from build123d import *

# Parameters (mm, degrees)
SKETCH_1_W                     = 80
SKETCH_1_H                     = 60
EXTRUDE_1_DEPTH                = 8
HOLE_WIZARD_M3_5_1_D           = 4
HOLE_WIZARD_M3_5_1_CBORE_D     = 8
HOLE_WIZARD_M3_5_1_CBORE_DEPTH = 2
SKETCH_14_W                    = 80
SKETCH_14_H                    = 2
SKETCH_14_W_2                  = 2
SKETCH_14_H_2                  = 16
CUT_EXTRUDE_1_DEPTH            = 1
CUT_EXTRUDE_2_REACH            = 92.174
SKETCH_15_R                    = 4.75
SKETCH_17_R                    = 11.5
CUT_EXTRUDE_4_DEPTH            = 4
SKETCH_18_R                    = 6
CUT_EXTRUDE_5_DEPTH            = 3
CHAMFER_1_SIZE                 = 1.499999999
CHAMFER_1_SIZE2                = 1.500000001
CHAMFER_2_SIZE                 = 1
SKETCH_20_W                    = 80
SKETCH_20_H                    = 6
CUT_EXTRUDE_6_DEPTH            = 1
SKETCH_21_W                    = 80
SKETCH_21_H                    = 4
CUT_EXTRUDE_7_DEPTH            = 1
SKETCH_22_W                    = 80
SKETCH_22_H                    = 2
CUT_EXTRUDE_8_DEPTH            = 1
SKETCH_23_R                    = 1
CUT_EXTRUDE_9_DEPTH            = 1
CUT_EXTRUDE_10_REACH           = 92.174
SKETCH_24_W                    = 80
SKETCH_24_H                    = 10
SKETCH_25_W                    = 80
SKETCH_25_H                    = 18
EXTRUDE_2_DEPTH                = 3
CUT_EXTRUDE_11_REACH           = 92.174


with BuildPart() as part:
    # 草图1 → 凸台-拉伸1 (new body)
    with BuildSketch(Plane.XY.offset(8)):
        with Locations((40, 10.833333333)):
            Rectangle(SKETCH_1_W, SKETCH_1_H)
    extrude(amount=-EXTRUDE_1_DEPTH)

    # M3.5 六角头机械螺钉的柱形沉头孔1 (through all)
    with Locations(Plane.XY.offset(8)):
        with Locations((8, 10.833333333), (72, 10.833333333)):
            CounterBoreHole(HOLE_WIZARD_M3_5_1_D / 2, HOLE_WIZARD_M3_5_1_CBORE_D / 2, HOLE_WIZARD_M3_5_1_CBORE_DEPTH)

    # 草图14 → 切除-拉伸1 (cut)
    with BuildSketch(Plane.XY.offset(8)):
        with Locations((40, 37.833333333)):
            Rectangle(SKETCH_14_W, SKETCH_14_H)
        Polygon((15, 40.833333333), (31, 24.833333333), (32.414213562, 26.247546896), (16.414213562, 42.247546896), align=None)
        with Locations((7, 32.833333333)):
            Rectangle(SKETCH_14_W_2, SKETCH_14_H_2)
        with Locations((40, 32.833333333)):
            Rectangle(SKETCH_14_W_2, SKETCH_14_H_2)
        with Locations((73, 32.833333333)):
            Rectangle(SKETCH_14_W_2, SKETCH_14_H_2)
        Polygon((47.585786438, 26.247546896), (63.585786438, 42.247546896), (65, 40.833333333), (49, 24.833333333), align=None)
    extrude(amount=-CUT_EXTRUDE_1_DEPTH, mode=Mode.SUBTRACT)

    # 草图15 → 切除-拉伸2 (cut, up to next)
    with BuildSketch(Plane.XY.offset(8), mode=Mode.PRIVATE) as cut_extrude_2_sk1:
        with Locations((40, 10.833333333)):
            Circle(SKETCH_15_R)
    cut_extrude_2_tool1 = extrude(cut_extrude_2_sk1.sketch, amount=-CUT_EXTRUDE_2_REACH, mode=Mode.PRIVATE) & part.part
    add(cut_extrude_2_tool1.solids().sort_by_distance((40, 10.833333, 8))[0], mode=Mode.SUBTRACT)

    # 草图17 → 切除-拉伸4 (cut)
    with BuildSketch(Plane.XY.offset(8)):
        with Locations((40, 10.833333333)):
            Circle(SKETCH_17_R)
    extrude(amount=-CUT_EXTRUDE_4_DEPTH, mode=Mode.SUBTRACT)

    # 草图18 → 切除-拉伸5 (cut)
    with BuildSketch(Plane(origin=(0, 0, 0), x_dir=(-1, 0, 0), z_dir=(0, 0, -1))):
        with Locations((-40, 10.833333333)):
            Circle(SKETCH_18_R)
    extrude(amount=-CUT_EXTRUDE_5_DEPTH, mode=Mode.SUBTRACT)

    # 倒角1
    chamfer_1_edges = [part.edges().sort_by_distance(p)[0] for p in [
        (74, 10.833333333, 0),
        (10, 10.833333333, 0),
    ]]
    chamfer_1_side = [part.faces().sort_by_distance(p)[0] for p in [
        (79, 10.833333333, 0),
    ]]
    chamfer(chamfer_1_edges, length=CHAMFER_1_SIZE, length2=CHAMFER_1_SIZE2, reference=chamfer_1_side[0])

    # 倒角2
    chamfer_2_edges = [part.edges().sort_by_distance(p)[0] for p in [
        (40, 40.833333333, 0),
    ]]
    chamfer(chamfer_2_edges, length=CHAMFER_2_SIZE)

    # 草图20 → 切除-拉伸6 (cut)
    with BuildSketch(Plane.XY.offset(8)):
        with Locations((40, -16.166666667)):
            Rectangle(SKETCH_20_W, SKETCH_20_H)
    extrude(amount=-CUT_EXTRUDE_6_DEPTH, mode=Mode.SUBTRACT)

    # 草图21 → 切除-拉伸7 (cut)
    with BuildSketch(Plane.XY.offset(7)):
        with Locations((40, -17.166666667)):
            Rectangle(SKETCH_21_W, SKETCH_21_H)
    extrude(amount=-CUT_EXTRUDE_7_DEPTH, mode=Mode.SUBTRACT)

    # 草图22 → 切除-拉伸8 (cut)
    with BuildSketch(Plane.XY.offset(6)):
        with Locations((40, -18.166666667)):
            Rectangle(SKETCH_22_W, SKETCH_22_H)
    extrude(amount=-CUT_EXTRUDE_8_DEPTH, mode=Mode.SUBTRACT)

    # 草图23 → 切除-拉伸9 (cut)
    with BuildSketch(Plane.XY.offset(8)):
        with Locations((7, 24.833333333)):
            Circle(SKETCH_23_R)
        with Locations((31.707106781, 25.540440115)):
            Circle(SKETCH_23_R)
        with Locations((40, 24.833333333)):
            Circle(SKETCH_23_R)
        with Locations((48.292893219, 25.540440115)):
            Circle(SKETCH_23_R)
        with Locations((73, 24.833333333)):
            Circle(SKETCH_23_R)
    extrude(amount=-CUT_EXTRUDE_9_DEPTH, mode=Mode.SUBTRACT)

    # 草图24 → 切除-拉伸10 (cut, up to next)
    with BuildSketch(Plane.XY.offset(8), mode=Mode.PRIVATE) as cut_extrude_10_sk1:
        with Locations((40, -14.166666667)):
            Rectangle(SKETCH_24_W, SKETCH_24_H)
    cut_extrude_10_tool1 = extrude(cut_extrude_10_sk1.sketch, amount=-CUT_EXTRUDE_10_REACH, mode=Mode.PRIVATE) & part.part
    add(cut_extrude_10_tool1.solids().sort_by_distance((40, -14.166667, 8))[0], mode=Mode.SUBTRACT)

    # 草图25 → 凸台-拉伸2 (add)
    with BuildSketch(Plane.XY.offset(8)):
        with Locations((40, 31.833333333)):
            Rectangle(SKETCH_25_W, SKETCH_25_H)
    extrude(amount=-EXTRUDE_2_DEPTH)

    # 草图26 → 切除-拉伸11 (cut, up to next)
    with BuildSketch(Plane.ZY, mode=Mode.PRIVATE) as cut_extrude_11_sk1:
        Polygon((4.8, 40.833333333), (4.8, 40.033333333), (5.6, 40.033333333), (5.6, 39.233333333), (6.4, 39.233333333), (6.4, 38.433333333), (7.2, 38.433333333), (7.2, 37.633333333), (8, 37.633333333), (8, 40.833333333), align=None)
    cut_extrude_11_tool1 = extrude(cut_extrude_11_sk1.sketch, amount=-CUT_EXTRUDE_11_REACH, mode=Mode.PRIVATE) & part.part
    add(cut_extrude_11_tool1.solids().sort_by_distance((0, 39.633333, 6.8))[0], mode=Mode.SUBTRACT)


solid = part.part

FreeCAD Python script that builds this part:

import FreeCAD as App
import Part
import Sketcher
from FreeCAD import Vector


def edges_at(feature, points):
    """Names of the edges that pass closest to the given points."""
    edges = feature.Shape.Edges
    near = lambda p: min(range(len(edges)), key=lambda i: edges[i].distToShape(Part.Vertex(*p))[0])
    return sorted({f"Edge{near(p) + 1}" for p in points})

doc = App.newDocument("Part")
body = doc.addObject("PartDesign::Body", "Body")

# Sketch on XY plane
sketch1 = body.newObject("Sketcher::SketchObject", "Sketch")
sketch1.AttachmentSupport = (doc.getObject("XY_Plane"), [""])
sketch1.MapMode = "FlatFace"
sketch1.AttachmentOffset = App.Placement(Vector(0, 0, 8), App.Rotation())
sketch1.addGeometry(Part.LineSegment(Vector(0, 41, 0), Vector(0, -19, 0)), False)
sketch1.addGeometry(Part.LineSegment(Vector(0, -19, 0), Vector(80, -19, 0)), False)
sketch1.addGeometry(Part.LineSegment(Vector(80, -19, 0), Vector(80, 41, 0)), False)
sketch1.addGeometry(Part.LineSegment(Vector(80, 41, 0), Vector(0, 41, 0)), False)
sketch1.addConstraint(Sketcher.Constraint("Coincident", 0, 2, 1, 1))
sketch1.addConstraint(Sketcher.Constraint("Coincident", 1, 2, 2, 1))
sketch1.addConstraint(Sketcher.Constraint("Coincident", 2, 2, 3, 1))
sketch1.addConstraint(Sketcher.Constraint("Coincident", 3, 2, 0, 1))
sketch1.addConstraint(Sketcher.Constraint("Vertical", 0))
sketch1.addConstraint(Sketcher.Constraint("Horizontal", 1))
sketch1.addConstraint(Sketcher.Constraint("Vertical", 2))
sketch1.addConstraint(Sketcher.Constraint("Horizontal", 3))
sketch1.addConstraint(Sketcher.Constraint("PointOnObject", 0, 2, -2))
sketch1.addConstraint(Sketcher.Constraint("DistanceX", 1, 1, 1, 2, 80.0))
sketch1.addConstraint(Sketcher.Constraint("DistanceY", 0, 2, 0, 1, 60.0))
sketch1.addConstraint(Sketcher.Constraint("DistanceY", 0, 2, -1, 1, 19.166667))
pad1 = body.newObject("PartDesign::Pad", "Pad")
pad1.Profile = sketch1
pad1.Length = 8
pad1.Reversed = True

# Sketch on XY plane
sketch2 = body.newObject("Sketcher::SketchObject", "Sketch001")
sketch2.AttachmentSupport = (doc.getObject("XY_Plane"), [""])
sketch2.MapMode = "FlatFace"
sketch2.AttachmentOffset = App.Placement(Vector(0, 0, 8), App.Rotation())
sketch2.addGeometry(Part.Circle(Vector(8, 10.8, 0), Vector(0, 0, 1), 2), False)
sketch2.addGeometry(Part.Circle(Vector(72, 10.8, 0), Vector(0, 0, 1), 2), False)
sketch2.addConstraint(Sketcher.Constraint("Equal", 0, 1))
sketch2.addConstraint(Sketcher.Constraint("Horizontal", 0, 3, 1, 3))
sketch2.addConstraint(Sketcher.Constraint("Diameter", 0, 4.0))
sketch2.addConstraint(Sketcher.Constraint("DistanceX", -1, 1, 0, 3, 8.0))
sketch2.addConstraint(Sketcher.Constraint("DistanceX", -1, 1, 1, 3, 72.0))
sketch2.addConstraint(Sketcher.Constraint("DistanceY", -1, 1, 0, 3, 10.833333))
doc.recompute()
hole = body.newObject("PartDesign::Hole", "Hole")
hole.Profile = sketch2
hole.ThreadType = "None"
hole.Diameter = 4
hole.DepthType = "ThroughAll"
hole.HoleCutType = "Counterbore"
hole.HoleCutDiameter = 8
hole.HoleCutDepth = 2

# Sketch on XY plane
sketch3 = body.newObject("Sketcher::SketchObject", "Sketch002")
sketch3.AttachmentSupport = (doc.getObject("XY_Plane"), [""])
sketch3.MapMode = "FlatFace"
sketch3.AttachmentOffset = App.Placement(Vector(0, 0, 8), App.Rotation())
sketch3.addGeometry(Part.LineSegment(Vector(0, 38.8, 0), Vector(0, 36.8, 0)), False)
sketch3.addGeometry(Part.LineSegment(Vector(0, 36.8, 0), Vector(6, 36.8, 0)), False)
sketch3.addGeometry(Part.LineSegment(Vector(6, 36.8, 0), Vector(6, 24.8, 0)), False)
sketch3.addGeometry(Part.LineSegment(Vector(6, 24.8, 0), Vector(8, 24.8, 0)), False)
sketch3.addGeometry(Part.LineSegment(Vector(8, 24.8, 0), Vector(8, 36.8, 0)), False)
sketch3.addGeometry(Part.LineSegment(Vector(8, 36.8, 0), Vector(19, 36.8, 0)), False)
sketch3.addGeometry(Part.LineSegment(Vector(19, 36.8, 0), Vector(31, 24.8, 0)), False)
sketch3.addGeometry(Part.LineSegment(Vector(31, 24.8, 0), Vector(32.4, 26.2, 0)), False)
sketch3.addGeometry(Part.LineSegment(Vector(32.4, 26.2, 0), Vector(21.8, 36.8, 0)), False)
sketch3.addGeometry(Part.LineSegment(Vector(21.8, 36.8, 0), Vector(39, 36.8, 0)), False)
sketch3.addGeometry(Part.LineSegment(Vector(39, 36.8, 0), Vector(39, 24.8, 0)), False)
sketch3.addGeometry(Part.LineSegment(Vector(39, 24.8, 0), Vector(41, 24.8, 0)), False)
sketch3.addGeometry(Part.LineSegment(Vector(41, 24.8, 0), Vector(41, 36.8, 0)), False)
sketch3.addGeometry(Part.LineSegment(Vector(41, 36.8, 0), Vector(58.2, 36.8, 0)), False)
sketch3.addGeometry(Part.LineSegment(Vector(58.2, 36.8, 0), Vector(47.6, 26.2, 0)), False)
sketch3.addGeometry(Part.LineSegment(Vector(47.6, 26.2, 0), Vector(49, 24.8, 0)), False)
sketch3.addGeometry(Part.LineSegment(Vector(49, 24.8, 0), Vector(61, 36.8, 0)), False)
sketch3.addGeometry(Part.LineSegment(Vector(61, 36.8, 0), Vector(72, 36.8, 0)), False)
sketch3.addGeometry(Part.LineSegment(Vector(72, 36.8, 0), Vector(72, 24.8, 0)), False)
sketch3.addGeometry(Part.LineSegment(Vector(72, 24.8, 0), Vector(74, 24.8, 0)), False)
sketch3.addGeometry(Part.LineSegment(Vector(74, 24.8, 0), Vector(74, 36.8, 0)), False)
sketch3.addGeometry(Part.LineSegment(Vector(74, 36.8, 0), Vector(80, 36.8, 0)), False)
sketch3.addGeometry(Part.LineSegment(Vector(80, 36.8, 0), Vector(80, 38.8, 0)), False)
sketch3.addGeometry(Part.LineSegment(Vector(80, 38.8, 0), Vector(74, 38.8, 0)), False)
sketch3.addGeometry(Part.LineSegment(Vector(74, 38.8, 0), Vector(74, 40.8, 0)), False)
sketch3.addGeometry(Part.LineSegment(Vector(74, 40.8, 0), Vector(72, 40.8, 0)), False)
sketch3.addGeometry(Part.LineSegment(Vector(72, 40.8, 0), Vector(72, 38.8, 0)), False)
sketch3.addGeometry(Part.LineSegment(Vector(72, 38.8, 0), Vector(63, 38.8, 0)), False)
sketch3.addGeometry(Part.LineSegment(Vector(63, 38.8, 0), Vector(65, 40.8, 0)), False)
sketch3.addGeometry(Part.LineSegment(Vector(65, 40.8, 0), Vector(63.6, 42.2, 0)), False)
sketch3.addGeometry(Part.LineSegment(Vector(63.6, 42.2, 0), Vector(60.2, 38.8, 0)), False)
sketch3.addGeometry(Part.LineSegment(Vector(60.2, 38.8, 0), Vector(41, 38.8, 0)), False)
sketch3.addGeometry(Part.LineSegment(Vector(41, 38.8, 0), Vector(41, 40.8, 0)), False)
sketch3.addGeometry(Part.LineSegment(Vector(41, 40.8, 0), Vector(39, 40.8, 0)), False)
sketch3.addGeometry(Part.LineSegment(Vector(39, 40.8, 0), Vector(39, 38.8, 0)), False)
sketch3.addGeometry(Part.LineSegment(Vector(39, 38.8, 0), Vector(19.8, 38.8, 0)), False)
sketch3.addGeometry(Part.LineSegment(Vector(19.8, 38.8, 0), Vector(16.4, 42.2, 0)), False)
sketch3.addGeometry(Part.LineSegment(Vector(16.4, 42.2, 0), Vector(15, 40.8, 0)), False)
sketch3.addGeometry(Part.LineSegment(Vector(15, 40.8, 0), Vector(17, 38.8, 0)), False)
sketch3.addGeometry(Part.LineSegment(Vector(17, 38.8, 0), Vector(8, 38.8, 0)), False)
sketch3.addGeometry(Part.LineSegment(Vector(8, 38.8, 0), Vector(8, 40.8, 0)), False)
sketch3.addGeometry(Part.LineSegment(Vector(8, 40.8, 0), Vector(6, 40.8, 0)), False)
sketch3.addGeometry(Part.LineSegment(Vector(6, 40.8, 0), Vector(6, 38.8, 0)), False)
sketch3.addGeometry(Part.LineSegment(Vector(6, 38.8, 0), Vector(0, 38.8, 0)), False)
sketch3.addConstraint(Sketcher.Constraint("Coincident", 0, 2, 1, 1))
sketch3.addConstraint(Sketcher.Constraint("Coincident", 1, 2, 2, 1))
sketch3.addConstraint(Sketcher.Constraint("Coincident", 2, 2, 3, 1))
sketch3.addConstraint(Sketcher.Constraint("Coincident", 3, 2, 4, 1))
sketch3.addConstraint(Sketcher.Constraint("Coincident", 4, 2, 5, 1))
sketch3.addConstraint(Sketcher.Constraint("Coincident", 5, 2, 6, 1))
sketch3.addConstraint(Sketcher.Constraint("Coincident", 6, 2, 7, 1))
sketch3.addConstraint(Sketcher.Constraint("Coincident", 7, 2, 8, 1))
sketch3.addConstraint(Sketcher.Constraint("Coincident", 8, 2, 9, 1))
sketch3.addConstraint(Sketcher.Constraint("Coincident", 9, 2, 10, 1))
sketch3.addConstraint(Sketcher.Constraint("Coincident", 10, 2, 11, 1))
sketch3.addConstraint(Sketcher.Constraint("Coincident", 11, 2, 12, 1))
sketch3.addConstraint(Sketcher.Constraint("Coincident", 12, 2, 13, 1))
sketch3.addConstraint(Sketcher.Constraint("Coincident", 13, 2, 14, 1))
sketch3.addConstraint(Sketcher.Constraint("Coincident", 14, 2, 15, 1))
sketch3.addConstraint(Sketcher.Constraint("Coincident", 15, 2, 16, 1))
sketch3.addConstraint(Sketcher.Constraint("Coincident", 16, 2, 17, 1))
sketch3.addConstraint(Sketcher.Constraint("Coincident", 17, 2, 18, 1))
sketch3.addConstraint(Sketcher.Constraint("Coincident", 18, 2, 19, 1))
sketch3.addConstraint(Sketcher.Constraint("Coincident", 19, 2, 20, 1))
sketch3.addConstraint(Sketcher.Constraint("Coincident", 20, 2, 21, 1))
sketch3.addConstraint(Sketcher.Constraint("Coincident", 21, 2, 22, 1))
sketch3.addConstraint(Sketcher.Constraint("Coincident", 22, 2, 23, 1))
sketch3.addConstraint(Sketcher.Constraint("Coincident", 23, 2, 24, 1))
sketch3.addConstraint(Sketcher.Constraint("Coincident", 24, 2, 25, 1))
sketch3.addConstraint(Sketcher.Constraint("Coincident", 25, 2, 26, 1))
sketch3.addConstraint(Sketcher.Constraint("Coincident", 26, 2, 27, 1))
sketch3.addConstraint(Sketcher.Constraint("Coincident", 27, 2, 28, 1))
sketch3.addConstraint(Sketcher.Constraint("Coincident", 28, 2, 29, 1))
sketch3.addConstraint(Sketcher.Constraint("Coincident", 29, 2, 30, 1))
sketch3.addConstraint(Sketcher.Constraint("Coincident", 30, 2, 31, 1))
sketch3.addConstraint(Sketcher.Constraint("Coincident", 31, 2, 32, 1))
sketch3.addConstraint(Sketcher.Constraint("Coincident", 32, 2, 33, 1))
sketch3.addConstraint(Sketcher.Constraint("Coincident", 33, 2, 34, 1))
sketch3.addConstraint(Sketcher.Constraint("Coincident", 34, 2, 35, 1))
sketch3.addConstraint(Sketcher.Constraint("Coincident", 35, 2, 36, 1))
sketch3.addConstraint(Sketcher.Constraint("Coincident", 36, 2, 37, 1))
sketch3.addConstraint(Sketcher.Constraint("Coincident", 37, 2, 38, 1))
sketch3.addConstraint(Sketcher.Constraint("Coincident", 38, 2, 39, 1))
sketch3.addConstraint(Sketcher.Constraint("Coincident", 39, 2, 40, 1))
sketch3.addConstraint(Sketcher.Constraint("Coincident", 40, 2, 41, 1))
sketch3.addConstraint(Sketcher.Constraint("Coincident", 41, 2, 42, 1))
sketch3.addConstraint(Sketcher.Constraint("Coincident", 42, 2, 43, 1))
sketch3.addConstraint(Sketcher.Constraint("Coincident", 43, 2, 0, 1))
sketch3.addConstraint(Sketcher.Constraint("Vertical", 0))
sketch3.addConstraint(Sketcher.Constraint("Horizontal", 1))
sketch3.addConstraint(Sketcher.Constraint("Vertical", 2))
sketch3.addConstraint(Sketcher.Constraint("Horizontal", 3))
sketch3.addConstraint(Sketcher.Constraint("Vertical", 4))
sketch3.addConstraint(Sketcher.Constraint("Horizontal", 5))
sketch3.addConstraint(Sketcher.Constraint("Horizontal", 9))
sketch3.addConstraint(Sketcher.Constraint("Vertical", 10))
sketch3.addConstraint(Sketcher.Constraint("Horizontal", 11))
sketch3.addConstraint(Sketcher.Constraint("Vertical", 12))
sketch3.addConstraint(Sketcher.Constraint("Horizontal", 13))
sketch3.addConstraint(Sketcher.Constraint("Horizontal", 17))
sketch3.addConstraint(Sketcher.Constraint("Vertical", 18))
sketch3.addConstraint(Sketcher.Constraint("Horizontal", 19))
sketch3.addConstraint(Sketcher.Constraint("Vertical", 20))
sketch3.addConstraint(Sketcher.Constraint("Horizontal", 21))
sketch3.addConstraint(Sketcher.Constraint("Vertical", 22))
sketch3.addConstraint(Sketcher.Constraint("Horizontal", 23))
sketch3.addConstraint(Sketcher.Constraint("Vertical", 24))
sketch3.addConstraint(Sketcher.Constraint("Horizontal", 25))
sketch3.addConstraint(Sketcher.Constraint("Vertical", 26))
sketch3.addConstraint(Sketcher.Constraint("Horizontal", 27))
sketch3.addConstraint(Sketcher.Constraint("Horizontal", 31))
sketch3.addConstraint(Sketcher.Constraint("Vertical", 32))
sketch3.addConstraint(Sketcher.Constraint("Horizontal", 33))
sketch3.addConstraint(Sketcher.Constraint("Vertical", 34))
sketch3.addConstraint(Sketcher.Constraint("Horizontal", 35))
sketch3.addConstraint(Sketcher.Constraint("Horizontal", 39))
sketch3.addConstraint(Sketcher.Constraint("Vertical", 40))
sketch3.addConstraint(Sketcher.Constraint("Horizontal", 41))
sketch3.addConstraint(Sketcher.Constraint("Vertical", 42))
sketch3.addConstraint(Sketcher.Constraint("Horizontal", 43))
sketch3.addConstraint(Sketcher.Constraint("PointOnObject", 0, 2, -2))
sketch3.addConstraint(Sketcher.Constraint("Perpendicular", 6, 7))
sketch3.addConstraint(Sketcher.Constraint("Perpendicular", 7, 8))
sketch3.addConstraint(Sketcher.Constraint("Perpendicular", 8, 14))
sketch3.addConstraint(Sketcher.Constraint("Perpendicular", 14, 15))
sketch3.addConstraint(Sketcher.Constraint("Perpendicular", 15, 16))
sketch3.addConstraint(Sketcher.Constraint("Parallel", 16, 28))
sketch3.addConstraint(Sketcher.Constraint("Perpendicular", 28, 29))
sketch3.addConstraint(Sketcher.Constraint("Perpendicular", 29, 30))
sketch3.addConstraint(Sketcher.Constraint("Perpendicular", 30, 36))
sketch3.addConstraint(Sketcher.Constraint("Perpendicular", 36, 37))
sketch3.addConstraint(Sketcher.Constraint("Perpendicular", 37, 38))
sketch3.addConstraint(Sketcher.Constraint("Horizontal", 1, 2, 4, 2))
sketch3.addConstraint(Sketcher.Constraint("Horizontal", 3, 2, 6, 2))
sketch3.addConstraint(Sketcher.Constraint("Horizontal", 5, 2, 8, 2))
sketch3.addConstraint(Sketcher.Constraint("Horizontal", 6, 2, 10, 2))
sketch3.addConstraint(Sketcher.Constraint("Horizontal", 9, 2, 12, 2))
sketch3.addConstraint(Sketcher.Constraint("Horizontal", 7, 2, 14, 2))
sketch3.addConstraint(Sketcher.Constraint("Horizontal", 11, 2, 15, 2))
sketch3.addConstraint(Sketcher.Constraint("Horizontal", 13, 2, 16, 2))
sketch3.addConstraint(Sketcher.Constraint("Horizontal", 15, 2, 18, 2))
sketch3.addConstraint(Sketcher.Constraint("Horizontal", 17, 2, 20, 2))
sketch3.addConstraint(Sketcher.Constraint("Horizontal", 23, 2, 26, 2))
sketch3.addConstraint(Sketcher.Constraint("Horizontal", 25, 2, 28, 2))
sketch3.addConstraint(Sketcher.Constraint("Horizontal", 27, 2, 30, 2))
sketch3.addConstraint(Sketcher.Constraint("Horizontal", 28, 2, 32, 2))
sketch3.addConstraint(Sketcher.Constraint("Horizontal", 31, 2, 34, 2))
sketch3.addConstraint(Sketcher.Constraint("Horizontal", 29, 2, 36, 2))
sketch3.addConstraint(Sketcher.Constraint("Horizontal", 33, 2, 37, 2))
sketch3.addConstraint(Sketcher.Constraint("Horizontal", 35, 2, 38, 2))
sketch3.addConstraint(Sketcher.Constraint("Horizontal", 37, 2, 40, 2))
sketch3.addConstraint(Sketcher.Constraint("Horizontal", 39, 2, 42, 2))
sketch3.addConstraint(Sketcher.Constraint("Vertical", 20, 2, 23, 2))
sketch3.addConstraint(Sketcher.Constraint("Vertical", 18, 2, 25, 2))
sketch3.addConstraint(Sketcher.Constraint("Vertical", 12, 2, 31, 2))
sketch3.addConstraint(Sketcher.Constraint("Vertical", 10, 2, 33, 2))
sketch3.addConstraint(Sketcher.Constraint("Vertical", 4, 2, 39, 2))
sketch3.addConstraint(Sketcher.Constraint("Vertical", 2, 2, 41, 2))
sketch3.addConstraint(Sketcher.Constraint("Equal", 3, 11))
sketch3.addConstraint(Sketcher.Constraint("Equal", 9, 13))
sketch3.addConstraint(Sketcher.Constraint("Equal", 5, 17))
sketch3.addConstraint(Sketcher.Constraint("Equal", 11, 19))
sketch3.addConstraint(Sketcher.Constraint("Equal", 1, 21))
sketch3.addConstraint(Sketcher.Constraint("Equal", 31, 35))
sketch3.addConstraint(Sketcher.Constraint("Equal", 41, 0))
sketch3.addConstraint(Sketcher.Constraint("Equal", 22, 24))
sketch3.addConstraint(Sketcher.Constraint("Equal", 8, 14))
sketch3.addConstraint(Sketcher.Constraint("Equal", 15, 29))
sketch3.addConstraint(Sketcher.Constraint("DistanceX", 1, 1, 1, 2, 6.0))
sketch3.addConstraint(Sketcher.Constraint("DistanceX", 3, 1, 3, 2, 2.0))
sketch3.addConstraint(Sketcher.Constraint("DistanceX", 5, 1, 5, 2, 11.0))
sketch3.addConstraint(Sketcher.Constraint("DistanceX", 27, 2, 27, 1, 9.0))
sketch3.addConstraint(Sketcher.Constraint("DistanceY", 2, 2, 2, 1, 12.0))
sketch3.addConstraint(Sketcher.Constraint("Distance", 7, 2.0))
sketch3.addConstraint(Sketcher.Constraint("DistanceX", -1, 1, 9, 2, 39.0))
sketch3.addConstraint(Sketcher.Constraint("DistanceY", -1, 1, 0, 2, 36.833333))
pocket1 = body.newObject("PartDesign::Pocket", "Pocket")
pocket1.Profile = sketch3
pocket1.Length = 1

# Sketch on XY plane
sketch4 = body.newObject("Sketcher::SketchObject", "Sketch003")
sketch4.AttachmentSupport = (doc.getObject("XY_Plane"), [""])
sketch4.MapMode = "FlatFace"
sketch4.AttachmentOffset = App.Placement(Vector(0, 0, 8), App.Rotation())
sketch4.addGeometry(Part.Circle(Vector(40, 10.8, 0), Vector(0, 0, 1), 4.8), False)
sketch4.addConstraint(Sketcher.Constraint("Diameter", 0, 9.5))
sketch4.addConstraint(Sketcher.Constraint("DistanceX", -1, 1, 0, 3, 40.0))
sketch4.addConstraint(Sketcher.Constraint("DistanceY", -1, 1, 0, 3, 10.833333))
pocket2 = body.newObject("PartDesign::Pocket", "Pocket001")
pocket2.Profile = sketch4
pocket2.Type = "UpToFirst"

# Sketch on XY plane
sketch5 = body.newObject("Sketcher::SketchObject", "Sketch004")
sketch5.AttachmentSupport = (doc.getObject("XY_Plane"), [""])
sketch5.MapMode = "FlatFace"
sketch5.AttachmentOffset = App.Placement(Vector(0, 0, 8), App.Rotation())
sketch5.addGeometry(Part.Circle(Vector(40, 11, 0), Vector(0, 0, 1), 12), False)
sketch5.addConstraint(Sketcher.Constraint("Diameter", 0, 23.0))
sketch5.addConstraint(Sketcher.Constraint("DistanceX", -1, 1, 0, 3, 40.0))
sketch5.addConstraint(Sketcher.Constraint("DistanceY", -1, 1, 0, 3, 10.833333))
pocket3 = body.newObject("PartDesign::Pocket", "Pocket002")
pocket3.Profile = sketch5
pocket3.Length = 4

# Sketch on XY plane
sketch6 = body.newObject("Sketcher::SketchObject", "Sketch005")
sketch6.AttachmentSupport = (doc.getObject("XY_Plane"), [""])
sketch6.MapMode = "FlatFace"
sketch6.addGeometry(Part.Circle(Vector(40, 11, 0), Vector(0, 0, 1), 6), False)
sketch6.addConstraint(Sketcher.Constraint("Diameter", 0, 12.0))
sketch6.addConstraint(Sketcher.Constraint("DistanceX", -1, 1, 0, 3, 40.0))
sketch6.addConstraint(Sketcher.Constraint("DistanceY", -1, 1, 0, 3, 10.833333))
pocket4 = body.newObject("PartDesign::Pocket", "Pocket003")
pocket4.Profile = sketch6
pocket4.Length = 3
pocket4.Reversed = True
doc.recompute()

chamfer = body.newObject("PartDesign::Chamfer", "Chamfer")
chamfer.Base = (pocket4, edges_at(pocket4, [(74, 10.833, 0), (10, 10.833, 0)]))
chamfer.ChamferType = "Two distances"
chamfer.Size = 1.5
chamfer.Size2 = 1.5
doc.recompute()

chamfer2 = body.newObject("PartDesign::Chamfer", "Chamfer001")
chamfer2.Base = (chamfer, edges_at(chamfer, [(40, 40.833, 0)]))
chamfer2.Size = 1

# Sketch on XY plane
sketch7 = body.newObject("Sketcher::SketchObject", "Sketch006")
sketch7.AttachmentSupport = (doc.getObject("XY_Plane"), [""])
sketch7.MapMode = "FlatFace"
sketch7.AttachmentOffset = App.Placement(Vector(0, 0, 8), App.Rotation())
sketch7.addGeometry(Part.LineSegment(Vector(0, -13, 0), Vector(0, -19, 0)), False)
sketch7.addGeometry(Part.LineSegment(Vector(0, -19, 0), Vector(80, -19, 0)), False)
sketch7.addGeometry(Part.LineSegment(Vector(80, -19, 0), Vector(80, -13, 0)), False)
sketch7.addGeometry(Part.LineSegment(Vector(80, -13, 0), Vector(0, -13, 0)), False)
sketch7.addConstraint(Sketcher.Constraint("Coincident", 0, 2, 1, 1))
sketch7.addConstraint(Sketcher.Constraint("Coincident", 1, 2, 2, 1))
sketch7.addConstraint(Sketcher.Constraint("Coincident", 2, 2, 3, 1))
sketch7.addConstraint(Sketcher.Constraint("Coincident", 3, 2, 0, 1))
sketch7.addConstraint(Sketcher.Constraint("Vertical", 0))
sketch7.addConstraint(Sketcher.Constraint("Horizontal", 1))
sketch7.addConstraint(Sketcher.Constraint("Vertical", 2))
sketch7.addConstraint(Sketcher.Constraint("Horizontal", 3))
sketch7.addConstraint(Sketcher.Constraint("PointOnObject", 0, 2, -2))
sketch7.addConstraint(Sketcher.Constraint("DistanceX", 1, 1, 1, 2, 80.0))
sketch7.addConstraint(Sketcher.Constraint("DistanceY", 0, 2, 0, 1, 6.0))
sketch7.addConstraint(Sketcher.Constraint("DistanceY", 0, 2, -1, 1, 19.166667))
pocket5 = body.newObject("PartDesign::Pocket", "Pocket004")
pocket5.Profile = sketch7
pocket5.Length = 1

# Sketch on XY plane
sketch8 = body.newObject("Sketcher::SketchObject", "Sketch007")
sketch8.AttachmentSupport = (doc.getObject("XY_Plane"), [""])
sketch8.MapMode = "FlatFace"
sketch8.AttachmentOffset = App.Placement(Vector(0, 0, 7), App.Rotation())
sketch8.addGeometry(Part.LineSegment(Vector(0, -15.2, 0), Vector(0, -19.2, 0)), False)
sketch8.addGeometry(Part.LineSegment(Vector(0, -19.2, 0), Vector(80, -19.2, 0)), False)
sketch8.addGeometry(Part.LineSegment(Vector(80, -19.2, 0), Vector(80, -15.2, 0)), False)
sketch8.addGeometry(Part.LineSegment(Vector(80, -15.2, 0), Vector(0, -15.2, 0)), False)
sketch8.addConstraint(Sketcher.Constraint("Coincident", 0, 2, 1, 1))
sketch8.addConstraint(Sketcher.Constraint("Coincident", 1, 2, 2, 1))
sketch8.addConstraint(Sketcher.Constraint("Coincident", 2, 2, 3, 1))
sketch8.addConstraint(Sketcher.Constraint("Coincident", 3, 2, 0, 1))
sketch8.addConstraint(Sketcher.Constraint("Vertical", 0))
sketch8.addConstraint(Sketcher.Constraint("Horizontal", 1))
sketch8.addConstraint(Sketcher.Constraint("Vertical", 2))
sketch8.addConstraint(Sketcher.Constraint("Horizontal", 3))
sketch8.addConstraint(Sketcher.Constraint("PointOnObject", 0, 2, -2))
sketch8.addConstraint(Sketcher.Constraint("DistanceX", 1, 1, 1, 2, 80.0))
sketch8.addConstraint(Sketcher.Constraint("DistanceY", 0, 2, 0, 1, 4.0))
sketch8.addConstraint(Sketcher.Constraint("DistanceY", 0, 2, -1, 1, 19.166667))
pocket6 = body.newObject("PartDesign::Pocket", "Pocket005")
pocket6.Profile = sketch8
pocket6.Length = 1

# Sketch on XY plane
sketch9 = body.newObject("Sketcher::SketchObject", "Sketch008")
sketch9.AttachmentSupport = (doc.getObject("XY_Plane"), [""])
sketch9.MapMode = "FlatFace"
sketch9.AttachmentOffset = App.Placement(Vector(0, 0, 6), App.Rotation())
sketch9.addGeometry(Part.LineSegment(Vector(0, -17.2, 0), Vector(0, -19.2, 0)), False)
sketch9.addGeometry(Part.LineSegment(Vector(0, -19.2, 0), Vector(80, -19.2, 0)), False)
sketch9.addGeometry(Part.LineSegment(Vector(80, -19.2, 0), Vector(80, -17.2, 0)), False)
sketch9.addGeometry(Part.LineSegment(Vector(80, -17.2, 0), Vector(0, -17.2, 0)), False)
sketch9.addConstraint(Sketcher.Constraint("Coincident", 0, 2, 1, 1))
sketch9.addConstraint(Sketcher.Constraint("Coincident", 1, 2, 2, 1))
sketch9.addConstraint(Sketcher.Constraint("Coincident", 2, 2, 3, 1))
sketch9.addConstraint(Sketcher.Constraint("Coincident", 3, 2, 0, 1))
sketch9.addConstraint(Sketcher.Constraint("Vertical", 0))
sketch9.addConstraint(Sketcher.Constraint("Horizontal", 1))
sketch9.addConstraint(Sketcher.Constraint("Vertical", 2))
sketch9.addConstraint(Sketcher.Constraint("Horizontal", 3))
sketch9.addConstraint(Sketcher.Constraint("PointOnObject", 0, 2, -2))
sketch9.addConstraint(Sketcher.Constraint("DistanceX", 1, 1, 1, 2, 80.0))
sketch9.addConstraint(Sketcher.Constraint("DistanceY", 0, 2, 0, 1, 2.0))
sketch9.addConstraint(Sketcher.Constraint("DistanceY", 0, 2, -1, 1, 19.166667))
pocket7 = body.newObject("PartDesign::Pocket", "Pocket006")
pocket7.Profile = sketch9
pocket7.Length = 1

# Sketch on XY plane
sketch10 = body.newObject("Sketcher::SketchObject", "Sketch009")
sketch10.AttachmentSupport = (doc.getObject("XY_Plane"), [""])
sketch10.MapMode = "FlatFace"
sketch10.AttachmentOffset = App.Placement(Vector(0, 0, 8), App.Rotation())
sketch10.addGeometry(Part.Circle(Vector(7, 24.8, 0), Vector(0, 0, 1), 1), False)
sketch10.addGeometry(Part.Circle(Vector(31.7, 25.5, 0), Vector(0, 0, 1), 1), False)
sketch10.addGeometry(Part.Circle(Vector(40, 24.8, 0), Vector(0, 0, 1), 1), False)
sketch10.addGeometry(Part.Circle(Vector(48.3, 25.5, 0), Vector(0, 0, 1), 1), False)
sketch10.addGeometry(Part.Circle(Vector(73, 24.8, 0), Vector(0, 0, 1), 1), False)
sketch10.addConstraint(Sketcher.Constraint("Equal", 0, 1))
sketch10.addConstraint(Sketcher.Constraint("Equal", 1, 2))
sketch10.addConstraint(Sketcher.Constraint("Equal", 2, 3))
sketch10.addConstraint(Sketcher.Constraint("Equal", 3, 4))
sketch10.addConstraint(Sketcher.Constraint("Horizontal", 0, 3, 2, 3))
sketch10.addConstraint(Sketcher.Constraint("Horizontal", 1, 3, 3, 3))
sketch10.addConstraint(Sketcher.Constraint("Horizontal", 2, 3, 4, 3))
sketch10.addConstraint(Sketcher.Constraint("Diameter", 0, 2.0))
sketch10.addConstraint(Sketcher.Constraint("DistanceX", -1, 1, 0, 3, 7.0))
sketch10.addConstraint(Sketcher.Constraint("DistanceX", -1, 1, 2, 3, 40.0))
sketch10.addConstraint(Sketcher.Constraint("DistanceX", -1, 1, 4, 3, 73.0))
sketch10.addConstraint(Sketcher.Constraint("DistanceY", -1, 1, 1, 3, 25.54044))
sketch10.addConstraint(Sketcher.Constraint("DistanceY", -1, 1, 0, 3, 24.833333))
sketch10.addConstraint(Sketcher.Constraint("DistanceX", -1, 1, 1, 3, 31.707107))
sketch10.addConstraint(Sketcher.Constraint("DistanceX", -1, 1, 3, 3, 48.292893))
pocket8 = body.newObject("PartDesign::Pocket", "Pocket007")
pocket8.Profile = sketch10
pocket8.Length = 1

# Sketch on XY plane
sketch11 = body.newObject("Sketcher::SketchObject", "Sketch010")
sketch11.AttachmentSupport = (doc.getObject("XY_Plane"), [""])
sketch11.MapMode = "FlatFace"
sketch11.AttachmentOffset = App.Placement(Vector(0, 0, 8), App.Rotation())
sketch11.addGeometry(Part.LineSegment(Vector(0, -9, 0), Vector(0, -19, 0)), False)
sketch11.addGeometry(Part.LineSegment(Vector(0, -19, 0), Vector(80, -19, 0)), False)
sketch11.addGeometry(Part.LineSegment(Vector(80, -19, 0), Vector(80, -9, 0)), False)
sketch11.addGeometry(Part.LineSegment(Vector(80, -9, 0), Vector(0, -9, 0)), False)
sketch11.addConstraint(Sketcher.Constraint("Coincident", 0, 2, 1, 1))
sketch11.addConstraint(Sketcher.Constraint("Coincident", 1, 2, 2, 1))
sketch11.addConstraint(Sketcher.Constraint("Coincident", 2, 2, 3, 1))
sketch11.addConstraint(Sketcher.Constraint("Coincident", 3, 2, 0, 1))
sketch11.addConstraint(Sketcher.Constraint("Vertical", 0))
sketch11.addConstraint(Sketcher.Constraint("Horizontal", 1))
sketch11.addConstraint(Sketcher.Constraint("Vertical", 2))
sketch11.addConstraint(Sketcher.Constraint("Horizontal", 3))
sketch11.addConstraint(Sketcher.Constraint("PointOnObject", 0, 2, -2))
sketch11.addConstraint(Sketcher.Constraint("DistanceX", 1, 1, 1, 2, 80.0))
sketch11.addConstraint(Sketcher.Constraint("DistanceY", 0, 2, 0, 1, 10.0))
sketch11.addConstraint(Sketcher.Constraint("DistanceY", 0, 2, -1, 1, 19.166667))
pocket9 = body.newObject("PartDesign::Pocket", "Pocket008")
pocket9.Profile = sketch11
pocket9.Length = 8

# Sketch on XY plane
sketch12 = body.newObject("Sketcher::SketchObject", "Sketch011")
sketch12.AttachmentSupport = (doc.getObject("XY_Plane"), [""])
sketch12.MapMode = "FlatFace"
sketch12.AttachmentOffset = App.Placement(Vector(0, 0, 8), App.Rotation())
sketch12.addGeometry(Part.LineSegment(Vector(0, 41, 0), Vector(0, 23, 0)), False)
sketch12.addGeometry(Part.LineSegment(Vector(0, 23, 0), Vector(80, 23, 0)), False)
sketch12.addGeometry(Part.LineSegment(Vector(80, 23, 0), Vector(80, 41, 0)), False)
sketch12.addGeometry(Part.LineSegment(Vector(80, 41, 0), Vector(0, 41, 0)), False)
sketch12.addConstraint(Sketcher.Constraint("Coincident", 0, 2, 1, 1))
sketch12.addConstraint(Sketcher.Constraint("Coincident", 1, 2, 2, 1))
sketch12.addConstraint(Sketcher.Constraint("Coincident", 2, 2, 3, 1))
sketch12.addConstraint(Sketcher.Constraint("Coincident", 3, 2, 0, 1))
sketch12.addConstraint(Sketcher.Constraint("Vertical", 0))
sketch12.addConstraint(Sketcher.Constraint("Horizontal", 1))
sketch12.addConstraint(Sketcher.Constraint("Vertical", 2))
sketch12.addConstraint(Sketcher.Constraint("Horizontal", 3))
sketch12.addConstraint(Sketcher.Constraint("PointOnObject", 0, 2, -2))
sketch12.addConstraint(Sketcher.Constraint("DistanceX", 1, 1, 1, 2, 80.0))
sketch12.addConstraint(Sketcher.Constraint("DistanceY", 0, 2, 0, 1, 18.0))
sketch12.addConstraint(Sketcher.Constraint("DistanceY", -1, 1, 0, 2, 22.833333))
pad2 = body.newObject("PartDesign::Pad", "Pad001")
pad2.Profile = sketch12
pad2.Length = 3
pad2.Reversed = True

# Sketch on YZ plane
sketch13 = body.newObject("Sketcher::SketchObject", "Sketch012")
sketch13.AttachmentSupport = (doc.getObject("YZ_Plane"), [""])
sketch13.MapMode = "FlatFace"
sketch13.addGeometry(Part.LineSegment(Vector(40.8, 4.8, 0), Vector(40, 4.8, 0)), False)
sketch13.addGeometry(Part.LineSegment(Vector(40, 4.8, 0), Vector(40, 5.6, 0)), False)
sketch13.addGeometry(Part.LineSegment(Vector(40, 5.6, 0), Vector(39.2, 5.6, 0)), False)
sketch13.addGeometry(Part.LineSegment(Vector(39.2, 5.6, 0), Vector(39.2, 6.4, 0)), False)
sketch13.addGeometry(Part.LineSegment(Vector(39.2, 6.4, 0), Vector(38.4, 6.4, 0)), False)
sketch13.addGeometry(Part.LineSegment(Vector(38.4, 6.4, 0), Vector(38.4, 7.2, 0)), False)
sketch13.addGeometry(Part.LineSegment(Vector(38.4, 7.2, 0), Vector(37.6, 7.2, 0)), False)
sketch13.addGeometry(Part.LineSegment(Vector(37.6, 7.2, 0), Vector(37.6, 8, 0)), False)
sketch13.addGeometry(Part.LineSegment(Vector(37.6, 8, 0), Vector(40.8, 8, 0)), False)
sketch13.addGeometry(Part.LineSegment(Vector(40.8, 8, 0), Vector(40.8, 4.8, 0)), False)
sketch13.addConstraint(Sketcher.Constraint("Coincident", 0, 2, 1, 1))
sketch13.addConstraint(Sketcher.Constraint("Coincident", 1, 2, 2, 1))
sketch13.addConstraint(Sketcher.Constraint("Coincident", 2, 2, 3, 1))
sketch13.addConstraint(Sketcher.Constraint("Coincident", 3, 2, 4, 1))
sketch13.addConstraint(Sketcher.Constraint("Coincident", 4, 2, 5, 1))
sketch13.addConstraint(Sketcher.Constraint("Coincident", 5, 2, 6, 1))
sketch13.addConstraint(Sketcher.Constraint("Coincident", 6, 2, 7, 1))
sketch13.addConstraint(Sketcher.Constraint("Coincident", 7, 2, 8, 1))
sketch13.addConstraint(Sketcher.Constraint("Coincident", 8, 2, 9, 1))
sketch13.addConstraint(Sketcher.Constraint("Coincident", 9, 2, 0, 1))
sketch13.addConstraint(Sketcher.Constraint("Horizontal", 0))
sketch13.addConstraint(Sketcher.Constraint("Vertical", 1))
sketch13.addConstraint(Sketcher.Constraint("Horizontal", 2))
sketch13.addConstraint(Sketcher.Constraint("Vertical", 3))
sketch13.addConstraint(Sketcher.Constraint("Horizontal", 4))
sketch13.addConstraint(Sketcher.Constraint("Vertical", 5))
sketch13.addConstraint(Sketcher.Constraint("Horizontal", 6))
sketch13.addConstraint(Sketcher.Constraint("Vertical", 7))
sketch13.addConstraint(Sketcher.Constraint("Horizontal", 8))
sketch13.addConstraint(Sketcher.Constraint("Vertical", 9))
sketch13.addConstraint(Sketcher.Constraint("Equal", 0, 2))
sketch13.addConstraint(Sketcher.Constraint("Equal", 2, 4))
sketch13.addConstraint(Sketcher.Constraint("Equal", 4, 6))
sketch13.addConstraint(Sketcher.Constraint("Equal", 6, 1))
sketch13.addConstraint(Sketcher.Constraint("Equal", 1, 3))
sketch13.addConstraint(Sketcher.Constraint("Equal", 3, 5))
sketch13.addConstraint(Sketcher.Constraint("Equal", 5, 7))
sketch13.addConstraint(Sketcher.Constraint("DistanceX", 0, 2, 0, 1, 0.8))
sketch13.addConstraint(Sketcher.Constraint("DistanceY", -1, 1, 7, 2, 8.0))
sketch13.addConstraint(Sketcher.Constraint("DistanceX", -1, 1, 0, 2, 40.033333))
pocket10 = body.newObject("PartDesign::Pocket", "Pocket009")
pocket10.Profile = sketch13
pocket10.Type = "UpToFirst"
pocket10.Reversed = True

doc.recompute()
